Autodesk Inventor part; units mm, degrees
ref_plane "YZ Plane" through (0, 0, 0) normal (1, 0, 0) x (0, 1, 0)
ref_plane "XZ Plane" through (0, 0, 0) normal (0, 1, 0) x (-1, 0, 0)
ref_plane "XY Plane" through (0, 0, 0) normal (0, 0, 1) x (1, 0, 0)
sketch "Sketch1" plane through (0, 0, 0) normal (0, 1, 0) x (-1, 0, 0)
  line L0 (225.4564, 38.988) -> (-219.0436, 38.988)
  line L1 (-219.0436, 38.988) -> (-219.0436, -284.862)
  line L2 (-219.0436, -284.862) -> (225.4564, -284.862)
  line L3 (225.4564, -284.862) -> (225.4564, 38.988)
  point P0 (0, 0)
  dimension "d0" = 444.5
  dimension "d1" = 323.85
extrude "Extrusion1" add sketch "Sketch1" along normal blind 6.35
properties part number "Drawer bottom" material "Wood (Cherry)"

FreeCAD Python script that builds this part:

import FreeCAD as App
import Part
import Sketcher
from FreeCAD import Vector
Q = App.Units.Quantity


def add_polygon(sketch, points):
    """Adds a closed chain of lines whose ends are joined by coincident constraints."""
    first, n = sketch.GeometryCount, len(points)
    for a, b in zip(points, points[1:] + points[:1]):
        sketch.addGeometry(Part.LineSegment(App.Vector(*a, 0), App.Vector(*b, 0)), False)
    for i in range(n):
        sketch.addConstraint(Sketcher.Constraint("Coincident", first + i, 2, first + (i + 1) % n, 1))

doc = App.newDocument("Part")
body = doc.addObject("PartDesign::Body", "Body")

sketch1 = doc.addObject("Sketcher::SketchObject", "Sketch")
body.addObject(sketch1)
sketch1.AttachmentSupport = (doc.XZ_Plane, [""])
sketch1.MapMode = "FlatFace"
add_polygon(sketch1, [(-225, -285), (-225, 39), (219, 39), (219, -285)])
sketch1.addConstraint([
    Sketcher.Constraint("Vertical", 0),
    Sketcher.Constraint("Horizontal", 1),
    Sketcher.Constraint("Vertical", 2),
    Sketcher.Constraint("Horizontal", 3),
    Sketcher.Constraint("DistanceX", 1, 1, 1, 2, Q("17.5 in")),
    Sketcher.Constraint("DistanceY", 0, 1, 0, 2, Q("12.75 in")),
    Sketcher.Constraint("DistanceX", 0, 2, -1, 1, Q("225.4564 mm")),
    Sketcher.Constraint("DistanceY", -1, 1, 0, 2, Q("38.988 mm")),
])
pad1 = doc.addObject("PartDesign::Pad", "Pad")
body.addObject(pad1)
pad1.Profile = sketch1
pad1.Length = Q("0.25 in")
pad1.Reversed = True

doc.recompute()
